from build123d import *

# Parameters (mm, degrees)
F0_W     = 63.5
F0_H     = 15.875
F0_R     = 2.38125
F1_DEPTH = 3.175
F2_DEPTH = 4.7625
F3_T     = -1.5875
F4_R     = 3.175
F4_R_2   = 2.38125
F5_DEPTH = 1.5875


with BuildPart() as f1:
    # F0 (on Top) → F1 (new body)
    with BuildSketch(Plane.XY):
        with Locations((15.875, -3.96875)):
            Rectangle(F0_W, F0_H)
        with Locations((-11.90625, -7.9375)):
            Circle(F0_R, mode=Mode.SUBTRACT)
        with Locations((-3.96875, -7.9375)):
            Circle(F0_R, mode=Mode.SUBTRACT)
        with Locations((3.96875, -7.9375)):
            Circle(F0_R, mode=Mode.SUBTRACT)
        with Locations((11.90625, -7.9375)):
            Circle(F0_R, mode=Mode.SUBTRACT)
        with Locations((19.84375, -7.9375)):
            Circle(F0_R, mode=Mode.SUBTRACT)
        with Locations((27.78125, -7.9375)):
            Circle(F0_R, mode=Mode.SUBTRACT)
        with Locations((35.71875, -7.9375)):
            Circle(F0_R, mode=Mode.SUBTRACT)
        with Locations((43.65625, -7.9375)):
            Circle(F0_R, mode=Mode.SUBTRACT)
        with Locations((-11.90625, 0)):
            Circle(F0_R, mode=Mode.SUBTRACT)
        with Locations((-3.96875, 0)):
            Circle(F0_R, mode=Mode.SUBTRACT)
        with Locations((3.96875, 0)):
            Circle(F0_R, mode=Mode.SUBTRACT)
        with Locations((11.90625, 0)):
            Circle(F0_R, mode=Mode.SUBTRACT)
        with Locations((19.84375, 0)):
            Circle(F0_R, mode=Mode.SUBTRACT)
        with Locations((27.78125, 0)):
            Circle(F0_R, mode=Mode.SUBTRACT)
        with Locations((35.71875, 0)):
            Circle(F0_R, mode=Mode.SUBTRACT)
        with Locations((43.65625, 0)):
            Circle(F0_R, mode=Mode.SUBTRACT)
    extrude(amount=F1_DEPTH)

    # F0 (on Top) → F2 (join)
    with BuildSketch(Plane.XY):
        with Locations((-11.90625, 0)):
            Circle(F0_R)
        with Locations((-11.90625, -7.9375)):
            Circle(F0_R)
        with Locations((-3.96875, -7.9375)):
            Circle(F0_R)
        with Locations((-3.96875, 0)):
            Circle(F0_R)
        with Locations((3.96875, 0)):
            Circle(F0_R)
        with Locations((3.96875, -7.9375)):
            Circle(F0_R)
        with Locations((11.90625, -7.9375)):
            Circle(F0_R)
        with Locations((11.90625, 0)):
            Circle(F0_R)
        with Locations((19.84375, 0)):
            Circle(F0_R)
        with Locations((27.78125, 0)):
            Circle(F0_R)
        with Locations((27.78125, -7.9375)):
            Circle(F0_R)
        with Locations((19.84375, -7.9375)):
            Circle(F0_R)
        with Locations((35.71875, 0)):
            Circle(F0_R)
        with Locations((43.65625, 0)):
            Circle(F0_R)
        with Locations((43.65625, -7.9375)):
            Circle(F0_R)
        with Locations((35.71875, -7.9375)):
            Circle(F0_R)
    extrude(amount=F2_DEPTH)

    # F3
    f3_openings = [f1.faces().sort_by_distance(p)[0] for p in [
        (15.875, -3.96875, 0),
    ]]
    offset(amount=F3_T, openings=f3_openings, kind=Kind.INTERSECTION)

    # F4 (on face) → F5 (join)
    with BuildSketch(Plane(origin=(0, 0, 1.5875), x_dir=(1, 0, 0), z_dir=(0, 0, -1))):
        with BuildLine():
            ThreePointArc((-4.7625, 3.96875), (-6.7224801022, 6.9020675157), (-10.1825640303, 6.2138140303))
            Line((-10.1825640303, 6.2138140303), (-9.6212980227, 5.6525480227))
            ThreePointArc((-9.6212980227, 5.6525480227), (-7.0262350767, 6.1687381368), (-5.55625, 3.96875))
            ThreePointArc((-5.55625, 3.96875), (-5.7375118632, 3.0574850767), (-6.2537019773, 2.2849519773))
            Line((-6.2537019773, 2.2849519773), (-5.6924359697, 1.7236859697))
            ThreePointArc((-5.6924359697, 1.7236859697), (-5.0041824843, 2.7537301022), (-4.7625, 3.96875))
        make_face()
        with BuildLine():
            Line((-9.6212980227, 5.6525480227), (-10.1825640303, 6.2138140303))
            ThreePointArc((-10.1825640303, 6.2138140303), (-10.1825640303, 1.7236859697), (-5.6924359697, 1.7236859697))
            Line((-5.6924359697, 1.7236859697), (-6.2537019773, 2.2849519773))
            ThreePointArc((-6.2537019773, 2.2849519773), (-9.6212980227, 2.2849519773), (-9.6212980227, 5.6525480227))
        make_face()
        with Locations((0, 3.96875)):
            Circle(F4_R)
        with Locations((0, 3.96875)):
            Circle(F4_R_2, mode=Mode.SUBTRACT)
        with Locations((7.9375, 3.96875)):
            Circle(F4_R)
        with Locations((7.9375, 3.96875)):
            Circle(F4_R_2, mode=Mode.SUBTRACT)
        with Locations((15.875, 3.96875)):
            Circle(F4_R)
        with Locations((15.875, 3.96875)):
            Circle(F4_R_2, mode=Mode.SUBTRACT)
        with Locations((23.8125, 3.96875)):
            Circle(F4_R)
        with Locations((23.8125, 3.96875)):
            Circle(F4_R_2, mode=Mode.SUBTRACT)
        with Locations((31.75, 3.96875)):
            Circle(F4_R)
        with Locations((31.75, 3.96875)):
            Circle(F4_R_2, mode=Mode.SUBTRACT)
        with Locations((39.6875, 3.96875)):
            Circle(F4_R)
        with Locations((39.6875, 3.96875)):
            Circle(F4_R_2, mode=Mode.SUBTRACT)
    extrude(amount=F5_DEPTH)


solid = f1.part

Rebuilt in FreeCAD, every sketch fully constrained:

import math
import FreeCAD as App
import Part
import Sketcher
Q = App.Units.Quantity


def faces_at(feature, points):
    """Names of the faces that lie closest to the given points."""
    faces = feature.Shape.Faces
    near = lambda p: min(range(len(faces)), key=lambda i: faces[i].distToShape(Part.Vertex(*p))[0])
    return sorted({f"Face{near(p) + 1}" for p in points})

doc = App.newDocument("Part")
body = doc.addObject("PartDesign::Body", "Body")

# Sketch on XY plane
sketch1 = body.newObject("Sketcher::SketchObject", "Sketch")
sketch1.AttachmentSupport = (doc.getObject("XY_Plane"), [""])
sketch1.MapMode = "FlatFace"
sketch1.addGeometry(Part.LineSegment(App.Vector(-15.9, 4, 0), App.Vector(-15.9, -11.9, 0)), False)
sketch1.addGeometry(Part.LineSegment(App.Vector(-15.9, -11.9, 0), App.Vector(47.6, -11.9, 0)), False)
sketch1.addGeometry(Part.LineSegment(App.Vector(47.6, -11.9, 0), App.Vector(47.6, 4, 0)), False)
sketch1.addGeometry(Part.LineSegment(App.Vector(47.6, 4, 0), App.Vector(-15.9, 4, 0)), False)
sketch1.addGeometry(Part.Circle(App.Vector(-11.9, -7.9, 0), App.Vector(0, 0, 1), 2.4), False)
sketch1.addGeometry(Part.Circle(App.Vector(-4, -7.9, 0), App.Vector(0, 0, 1), 2.4), False)
sketch1.addGeometry(Part.Circle(App.Vector(4, -7.9, 0), App.Vector(0, 0, 1), 2.4), False)
sketch1.addGeometry(Part.Circle(App.Vector(11.9, -7.9, 0), App.Vector(0, 0, 1), 2.4), False)
sketch1.addGeometry(Part.Circle(App.Vector(19.8, -7.9, 0), App.Vector(0, 0, 1), 2.4), False)
sketch1.addGeometry(Part.Circle(App.Vector(27.8, -7.9, 0), App.Vector(0, 0, 1), 2.4), False)
sketch1.addGeometry(Part.Circle(App.Vector(35.7, -7.9, 0), App.Vector(0, 0, 1), 2.4), False)
sketch1.addGeometry(Part.Circle(App.Vector(43.7, -7.9, 0), App.Vector(0, 0, 1), 2.4), False)
sketch1.addGeometry(Part.Circle(App.Vector(-11.9, 0, 0), App.Vector(0, 0, 1), 2.4), False)
sketch1.addGeometry(Part.Circle(App.Vector(-4, 0, 0), App.Vector(0, 0, 1), 2.4), False)
sketch1.addGeometry(Part.Circle(App.Vector(4, 0, 0), App.Vector(0, 0, 1), 2.4), False)
sketch1.addGeometry(Part.Circle(App.Vector(11.9, 0, 0), App.Vector(0, 0, 1), 2.4), False)
sketch1.addGeometry(Part.Circle(App.Vector(19.8, 0, 0), App.Vector(0, 0, 1), 2.4), False)
sketch1.addGeometry(Part.Circle(App.Vector(27.8, 0, 0), App.Vector(0, 0, 1), 2.4), False)
sketch1.addGeometry(Part.Circle(App.Vector(35.7, 0, 0), App.Vector(0, 0, 1), 2.4), False)
sketch1.addGeometry(Part.Circle(App.Vector(43.7, 0, 0), App.Vector(0, 0, 1), 2.4), False)
sketch1.addConstraint(Sketcher.Constraint("Coincident", 0, 2, 1, 1))
sketch1.addConstraint(Sketcher.Constraint("Coincident", 1, 2, 2, 1))
sketch1.addConstraint(Sketcher.Constraint("Coincident", 2, 2, 3, 1))
sketch1.addConstraint(Sketcher.Constraint("Coincident", 3, 2, 0, 1))
sketch1.addConstraint(Sketcher.Constraint("Vertical", 0))
sketch1.addConstraint(Sketcher.Constraint("Horizontal", 1))
sketch1.addConstraint(Sketcher.Constraint("Vertical", 2))
sketch1.addConstraint(Sketcher.Constraint("Horizontal", 3))
sketch1.addConstraint(Sketcher.Constraint("Equal", 4, 5))
sketch1.addConstraint(Sketcher.Constraint("Equal", 5, 6))
sketch1.addConstraint(Sketcher.Constraint("Equal", 6, 7))
sketch1.addConstraint(Sketcher.Constraint("Equal", 7, 8))
sketch1.addConstraint(Sketcher.Constraint("Equal", 8, 9))
sketch1.addConstraint(Sketcher.Constraint("Equal", 9, 10))
sketch1.addConstraint(Sketcher.Constraint("Equal", 10, 11))
sketch1.addConstraint(Sketcher.Constraint("Equal", 11, 12))
sketch1.addConstraint(Sketcher.Constraint("Equal", 12, 13))
sketch1.addConstraint(Sketcher.Constraint("Equal", 13, 14))
sketch1.addConstraint(Sketcher.Constraint("Equal", 14, 15))
sketch1.addConstraint(Sketcher.Constraint("Equal", 15, 16))
sketch1.addConstraint(Sketcher.Constraint("Equal", 16, 17))
sketch1.addConstraint(Sketcher.Constraint("Equal", 17, 18))
sketch1.addConstraint(Sketcher.Constraint("Equal", 18, 19))
sketch1.addConstraint(Sketcher.Constraint("Symmetric", 13, 3, 14, 3, -1, 1))
sketch1.addConstraint(Sketcher.Constraint("Symmetric", 12, 3, 15, 3, -1, 1))
sketch1.addConstraint(Sketcher.Constraint("Symmetric", 5, 3, 6, 3, -2))
sketch1.addConstraint(Sketcher.Constraint("Symmetric", 4, 3, 7, 3, -2))
sketch1.addConstraint(Sketcher.Constraint("PointOnObject", 12, 3, -1))
sketch1.addConstraint(Sketcher.Constraint("PointOnObject", 13, 3, -1))
sketch1.addConstraint(Sketcher.Constraint("PointOnObject", 16, 3, -1))
sketch1.addConstraint(Sketcher.Constraint("PointOnObject", 17, 3, -1))
sketch1.addConstraint(Sketcher.Constraint("PointOnObject", 18, 3, -1))
sketch1.addConstraint(Sketcher.Constraint("PointOnObject", 19, 3, -1))
sketch1.addConstraint(Sketcher.Constraint("Horizontal", 4, 3, 5, 3))
sketch1.addConstraint(Sketcher.Constraint("Horizontal", 7, 3, 8, 3))
sketch1.addConstraint(Sketcher.Constraint("Horizontal", 8, 3, 9, 3))
sketch1.addConstraint(Sketcher.Constraint("Horizontal", 9, 3, 10, 3))
sketch1.addConstraint(Sketcher.Constraint("Horizontal", 10, 3, 11, 3))
sketch1.addConstraint(Sketcher.Constraint("Vertical", 4, 3, 12, 3))
sketch1.addConstraint(Sketcher.Constraint("Vertical", 5, 3, 13, 3))
sketch1.addConstraint(Sketcher.Constraint("Vertical", 8, 3, 16, 3))
sketch1.addConstraint(Sketcher.Constraint("Vertical", 9, 3, 17, 3))
sketch1.addConstraint(Sketcher.Constraint("Vertical", 10, 3, 18, 3))
sketch1.addConstraint(Sketcher.Constraint("Vertical", 11, 3, 19, 3))
sketch1.addConstraint(Sketcher.Constraint("Diameter", 4, Q("0.1875 in")))
sketch1.addConstraint(Sketcher.Constraint("DistanceX", 1, 1, 1, 2, Q("2.5 in")))
sketch1.addConstraint(Sketcher.Constraint("DistanceY", 0, 2, 0, 1, Q("0.625 in")))
sketch1.addConstraint(Sketcher.Constraint("DistanceX", 4, 3, 8, 3, Q("1.25 in")))
sketch1.addConstraint(Sketcher.Constraint("DistanceX", 5, 3, 9, 3, Q("1.25 in")))
sketch1.addConstraint(Sketcher.Constraint("DistanceX", 6, 3, 10, 3, Q("1.25 in")))
sketch1.addConstraint(Sketcher.Constraint("DistanceX", 7, 3, 11, 3, Q("1.25 in")))
sketch1.addConstraint(Sketcher.Constraint("DistanceX", 4, 3, -1, 1, Q("0.46875 in")))
sketch1.addConstraint(Sketcher.Constraint("DistanceY", 4, 3, -1, 1, Q("0.3125 in")))
sketch1.addConstraint(Sketcher.Constraint("DistanceX", 5, 3, -1, 1, Q("0.15625 in")))
sketch1.addConstraint(Sketcher.Constraint("DistanceX", 0, 2, -1, 1, Q("0.625 in")))
sketch1.addConstraint(Sketcher.Constraint("DistanceY", 0, 2, -1, 1, Q("0.46875 in")))
pad1 = body.newObject("PartDesign::Pad", "Pad")
pad1.Profile = sketch1
pad1.Length = Q("0.125 in")

# Sketch on XY plane
sketch2 = body.newObject("Sketcher::SketchObject", "Sketch001")
sketch2.AttachmentSupport = (doc.getObject("XY_Plane"), [""])
sketch2.MapMode = "FlatFace"
sketch2.addGeometry(Part.Circle(App.Vector(-11.9, 0, 0), App.Vector(0, 0, 1), 2.4), False)
sketch2.addGeometry(Part.Circle(App.Vector(-11.9, -7.9, 0), App.Vector(0, 0, 1), 2.4), False)
sketch2.addGeometry(Part.Circle(App.Vector(-4, -7.9, 0), App.Vector(0, 0, 1), 2.4), False)
sketch2.addGeometry(Part.Circle(App.Vector(-4, 0, 0), App.Vector(0, 0, 1), 2.4), False)
sketch2.addGeometry(Part.Circle(App.Vector(4, 0, 0), App.Vector(0, 0, 1), 2.4), False)
sketch2.addGeometry(Part.Circle(App.Vector(4, -7.9, 0), App.Vector(0, 0, 1), 2.4), False)
sketch2.addGeometry(Part.Circle(App.Vector(11.9, -7.9, 0), App.Vector(0, 0, 1), 2.4), False)
sketch2.addGeometry(Part.Circle(App.Vector(11.9, 0, 0), App.Vector(0, 0, 1), 2.4), False)
sketch2.addGeometry(Part.Circle(App.Vector(19.8, 0, 0), App.Vector(0, 0, 1), 2.4), False)
sketch2.addGeometry(Part.Circle(App.Vector(27.8, 0, 0), App.Vector(0, 0, 1), 2.4), False)
sketch2.addGeometry(Part.Circle(App.Vector(27.8, -7.9, 0), App.Vector(0, 0, 1), 2.4), False)
sketch2.addGeometry(Part.Circle(App.Vector(19.8, -7.9, 0), App.Vector(0, 0, 1), 2.4), False)
sketch2.addGeometry(Part.Circle(App.Vector(35.7, 0, 0), App.Vector(0, 0, 1), 2.4), False)
sketch2.addGeometry(Part.Circle(App.Vector(43.7, 0, 0), App.Vector(0, 0, 1), 2.4), False)
sketch2.addGeometry(Part.Circle(App.Vector(43.7, -7.9, 0), App.Vector(0, 0, 1), 2.4), False)
sketch2.addGeometry(Part.Circle(App.Vector(35.7, -7.9, 0), App.Vector(0, 0, 1), 2.4), False)
sketch2.addConstraint(Sketcher.Constraint("Equal", 0, 1))
sketch2.addConstraint(Sketcher.Constraint("Equal", 1, 2))
sketch2.addConstraint(Sketcher.Constraint("Equal", 2, 3))
sketch2.addConstraint(Sketcher.Constraint("Equal", 3, 4))
sketch2.addConstraint(Sketcher.Constraint("Equal", 4, 5))
sketch2.addConstraint(Sketcher.Constraint("Equal", 5, 6))
sketch2.addConstraint(Sketcher.Constraint("Equal", 6, 7))
sketch2.addConstraint(Sketcher.Constraint("Equal", 7, 8))
sketch2.addConstraint(Sketcher.Constraint("Equal", 8, 9))
sketch2.addConstraint(Sketcher.Constraint("Equal", 9, 10))
sketch2.addConstraint(Sketcher.Constraint("Equal", 10, 11))
sketch2.addConstraint(Sketcher.Constraint("Equal", 11, 12))
sketch2.addConstraint(Sketcher.Constraint("Equal", 12, 13))
sketch2.addConstraint(Sketcher.Constraint("Equal", 13, 14))
sketch2.addConstraint(Sketcher.Constraint("Equal", 14, 15))
sketch2.addConstraint(Sketcher.Constraint("Symmetric", 3, 3, 4, 3, -1, 1))
sketch2.addConstraint(Sketcher.Constraint("Symmetric", 0, 3, 7, 3, -1, 1))
sketch2.addConstraint(Sketcher.Constraint("Symmetric", 2, 3, 5, 3, -2))
sketch2.addConstraint(Sketcher.Constraint("Symmetric", 1, 3, 6, 3, -2))
sketch2.addConstraint(Sketcher.Constraint("PointOnObject", 0, 3, -1))
sketch2.addConstraint(Sketcher.Constraint("PointOnObject", 3, 3, -1))
sketch2.addConstraint(Sketcher.Constraint("PointOnObject", 8, 3, -1))
sketch2.addConstraint(Sketcher.Constraint("PointOnObject", 9, 3, -1))
sketch2.addConstraint(Sketcher.Constraint("PointOnObject", 12, 3, -1))
sketch2.addConstraint(Sketcher.Constraint("PointOnObject", 13, 3, -1))
sketch2.addConstraint(Sketcher.Constraint("Horizontal", 1, 3, 2, 3))
sketch2.addConstraint(Sketcher.Constraint("Horizontal", 6, 3, 10, 3))
sketch2.addConstraint(Sketcher.Constraint("Horizontal", 10, 3, 11, 3))
sketch2.addConstraint(Sketcher.Constraint("Horizontal", 11, 3, 14, 3))
sketch2.addConstraint(Sketcher.Constraint("Horizontal", 14, 3, 15, 3))
sketch2.addConstraint(Sketcher.Constraint("Vertical", 0, 3, 1, 3))
sketch2.addConstraint(Sketcher.Constraint("Vertical", 2, 3, 3, 3))
sketch2.addConstraint(Sketcher.Constraint("Vertical", 9, 3, 10, 3))
sketch2.addConstraint(Sketcher.Constraint("Vertical", 8, 3, 11, 3))
sketch2.addConstraint(Sketcher.Constraint("Vertical", 13, 3, 14, 3))
sketch2.addConstraint(Sketcher.Constraint("Vertical", 12, 3, 15, 3))
sketch2.addConstraint(Sketcher.Constraint("Diameter", 0, Q("0.1875 in")))
sketch2.addConstraint(Sketcher.Constraint("DistanceX", 0, 3, -1, 1, Q("0.46875 in")))
sketch2.addConstraint(Sketcher.Constraint("DistanceY", 1, 3, -1, 1, Q("0.3125 in")))
sketch2.addConstraint(Sketcher.Constraint("DistanceX", 2, 3, -1, 1, Q("0.15625 in")))
sketch2.addConstraint(Sketcher.Constraint("DistanceX", -1, 1, 8, 3, Q("0.78125 in")))
sketch2.addConstraint(Sketcher.Constraint("DistanceX", -1, 1, 9, 3, Q("1.09375 in")))
sketch2.addConstraint(Sketcher.Constraint("DistanceX", -1, 1, 12, 3, Q("1.40625 in")))
sketch2.addConstraint(Sketcher.Constraint("DistanceX", -1, 1, 13, 3, Q("1.71875 in")))
pad2 = body.newObject("PartDesign::Pad", "Pad001")
pad2.Profile = sketch2
pad2.Length = Q("0.1875 in")
doc.recompute()

thickness = body.newObject("PartDesign::Thickness", "Thickness")
thickness.Base = (pad2, faces_at(pad2, [(15.875, -3.969, 0)]))
thickness.Value = Q("0.0625 in")
thickness.Reversed = True
thickness.Join = "Intersection"

# Sketch on XY plane
sketch3 = body.newObject("Sketcher::SketchObject", "Sketch002")
sketch3.AttachmentSupport = (doc.getObject("XY_Plane"), [""])
sketch3.MapMode = "FlatFace"
sketch3.AttachmentOffset = App.Placement(App.Vector(0, 0, 0.0625 * 25.4), App.Rotation())
sketch3.addGeometry(Part.ArcOfCircle(Part.Circle(App.Vector(-7.9, -4, 0), App.Vector(0, 0, 1), 3.2), math.radians(-135), math.radians(0)), False)
sketch3.addGeometry(Part.ArcOfCircle(Part.Circle(App.Vector(-7.9, -4, 0), App.Vector(0, 0, 1), 3.2), math.radians(45), math.radians(225)), False)
sketch3.addGeometry(Part.ArcOfCircle(Part.Circle(App.Vector(-7.9, -4, 0), App.Vector(0, 0, 1), 3.2), math.radians(0), math.radians(45)), False)
sketch3.addGeometry(Part.Circle(App.Vector(-7.9, -4, 0), App.Vector(0, 0, 1), 2.4), False)
sketch3.addGeometry(Part.Circle(App.Vector(0, -4, 0), App.Vector(0, 0, 1), 3.2), False)
sketch3.addGeometry(Part.Circle(App.Vector(0, -4, 0), App.Vector(0, 0, 1), 2.4), False)
sketch3.addGeometry(Part.Circle(App.Vector(7.9, -4, 0), App.Vector(0, 0, 1), 3.2), False)
sketch3.addGeometry(Part.Circle(App.Vector(7.9, -4, 0), App.Vector(0, 0, 1), 2.4), False)
sketch3.addGeometry(Part.Circle(App.Vector(15.9, -4, 0), App.Vector(0, 0, 1), 3.2), False)
sketch3.addGeometry(Part.Circle(App.Vector(15.9, -4, 0), App.Vector(0, 0, 1), 2.4), False)
sketch3.addGeometry(Part.Circle(App.Vector(23.8, -4, 0), App.Vector(0, 0, 1), 3.2), False)
sketch3.addGeometry(Part.Circle(App.Vector(23.8, -4, 0), App.Vector(0, 0, 1), 2.4), False)
sketch3.addGeometry(Part.Circle(App.Vector(31.8, -4, 0), App.Vector(0, 0, 1), 3.2), False)
sketch3.addGeometry(Part.Circle(App.Vector(31.8, -4, 0), App.Vector(0, 0, 1), 2.4), False)
sketch3.addGeometry(Part.Circle(App.Vector(39.7, -4, 0), App.Vector(0, 0, 1), 3.2), False)
sketch3.addGeometry(Part.Circle(App.Vector(39.7, -4, 0), App.Vector(0, 0, 1), 2.4), False)
sketch3.addConstraint(Sketcher.Constraint("Tangent", 0, 1, 1, 2))
sketch3.addConstraint(Sketcher.Constraint("Tangent", 1, 1, 2, 2))
sketch3.addConstraint(Sketcher.Constraint("Tangent", 2, 1, 0, 2))
sketch3.addConstraint(Sketcher.Constraint("Coincident", 3, 3, 0, 3))
sketch3.addConstraint(Sketcher.Constraint("Coincident", 5, 3, 4, 3))
sketch3.addConstraint(Sketcher.Constraint("Coincident", 7, 3, 6, 3))
sketch3.addConstraint(Sketcher.Constraint("Coincident", 9, 3, 8, 3))
sketch3.addConstraint(Sketcher.Constraint("Coincident", 11, 3, 10, 3))
sketch3.addConstraint(Sketcher.Constraint("Coincident", 13, 3, 12, 3))
sketch3.addConstraint(Sketcher.Constraint("Coincident", 15, 3, 14, 3))
sketch3.addConstraint(Sketcher.Constraint("Equal", 2, 4))
sketch3.addConstraint(Sketcher.Constraint("Equal", 3, 5))
sketch3.addConstraint(Sketcher.Constraint("Equal", 4, 6))
sketch3.addConstraint(Sketcher.Constraint("Equal", 5, 7))
sketch3.addConstraint(Sketcher.Constraint("Equal", 6, 8))
sketch3.addConstraint(Sketcher.Constraint("Equal", 7, 9))
sketch3.addConstraint(Sketcher.Constraint("Equal", 8, 10))
sketch3.addConstraint(Sketcher.Constraint("Equal", 9, 11))
sketch3.addConstraint(Sketcher.Constraint("Equal", 10, 12))
sketch3.addConstraint(Sketcher.Constraint("Equal", 11, 13))
sketch3.addConstraint(Sketcher.Constraint("Equal", 12, 14))
sketch3.addConstraint(Sketcher.Constraint("Equal", 13, 15))
sketch3.addConstraint(Sketcher.Constraint("Symmetric", 0, 3, 6, 3, -2))
sketch3.addConstraint(Sketcher.Constraint("PointOnObject", 4, 3, -2))
sketch3.addConstraint(Sketcher.Constraint("Horizontal", 3, 3, 4, 3))
sketch3.addConstraint(Sketcher.Constraint("Horizontal", 7, 3, 8, 3))
sketch3.addConstraint(Sketcher.Constraint("Horizontal", 9, 3, 10, 3))
sketch3.addConstraint(Sketcher.Constraint("Horizontal", 11, 3, 12, 3))
sketch3.addConstraint(Sketcher.Constraint("Horizontal", 13, 3, 14, 3))
sketch3.addConstraint(Sketcher.Constraint("Horizontal", 15, 3, 2, 1))
sketch3.addConstraint(Sketcher.Constraint("Diameter", 4, Q("0.25 in")))
sketch3.addConstraint(Sketcher.Constraint("Diameter", 3, Q("0.1875 in")))
sketch3.addConstraint(Sketcher.Constraint("DistanceX", -1, 1, 12, 3, Q("1.25 in")))
sketch3.addConstraint(Sketcher.Constraint("DistanceX", 0, 3, -1, 1, Q("0.3125 in")))
sketch3.addConstraint(Sketcher.Constraint("DistanceY", 0, 3, -1, 1, Q("0.15625 in")))
sketch3.addConstraint(Sketcher.Constraint("DistanceX", -1, 1, 8, 3, Q("0.625 in")))
sketch3.addConstraint(Sketcher.Constraint("DistanceX", -1, 1, 10, 3, Q("0.9375 in")))
sketch3.addConstraint(Sketcher.Constraint("DistanceX", -1, 1, 14, 3, Q("1.5625 in")))
sketch3.addConstraint(Sketcher.Constraint("DistanceX", 0, 1, -1, 1, 10.182564))
sketch3.addConstraint(Sketcher.Constraint("DistanceX", 1, 1, -1, 1, 5.692436))
pad3 = body.newObject("PartDesign::Pad", "Pad002")
pad3.Profile = sketch3
pad3.Length = Q("0.0625 in")
pad3.Reversed = True

doc.recompute()
